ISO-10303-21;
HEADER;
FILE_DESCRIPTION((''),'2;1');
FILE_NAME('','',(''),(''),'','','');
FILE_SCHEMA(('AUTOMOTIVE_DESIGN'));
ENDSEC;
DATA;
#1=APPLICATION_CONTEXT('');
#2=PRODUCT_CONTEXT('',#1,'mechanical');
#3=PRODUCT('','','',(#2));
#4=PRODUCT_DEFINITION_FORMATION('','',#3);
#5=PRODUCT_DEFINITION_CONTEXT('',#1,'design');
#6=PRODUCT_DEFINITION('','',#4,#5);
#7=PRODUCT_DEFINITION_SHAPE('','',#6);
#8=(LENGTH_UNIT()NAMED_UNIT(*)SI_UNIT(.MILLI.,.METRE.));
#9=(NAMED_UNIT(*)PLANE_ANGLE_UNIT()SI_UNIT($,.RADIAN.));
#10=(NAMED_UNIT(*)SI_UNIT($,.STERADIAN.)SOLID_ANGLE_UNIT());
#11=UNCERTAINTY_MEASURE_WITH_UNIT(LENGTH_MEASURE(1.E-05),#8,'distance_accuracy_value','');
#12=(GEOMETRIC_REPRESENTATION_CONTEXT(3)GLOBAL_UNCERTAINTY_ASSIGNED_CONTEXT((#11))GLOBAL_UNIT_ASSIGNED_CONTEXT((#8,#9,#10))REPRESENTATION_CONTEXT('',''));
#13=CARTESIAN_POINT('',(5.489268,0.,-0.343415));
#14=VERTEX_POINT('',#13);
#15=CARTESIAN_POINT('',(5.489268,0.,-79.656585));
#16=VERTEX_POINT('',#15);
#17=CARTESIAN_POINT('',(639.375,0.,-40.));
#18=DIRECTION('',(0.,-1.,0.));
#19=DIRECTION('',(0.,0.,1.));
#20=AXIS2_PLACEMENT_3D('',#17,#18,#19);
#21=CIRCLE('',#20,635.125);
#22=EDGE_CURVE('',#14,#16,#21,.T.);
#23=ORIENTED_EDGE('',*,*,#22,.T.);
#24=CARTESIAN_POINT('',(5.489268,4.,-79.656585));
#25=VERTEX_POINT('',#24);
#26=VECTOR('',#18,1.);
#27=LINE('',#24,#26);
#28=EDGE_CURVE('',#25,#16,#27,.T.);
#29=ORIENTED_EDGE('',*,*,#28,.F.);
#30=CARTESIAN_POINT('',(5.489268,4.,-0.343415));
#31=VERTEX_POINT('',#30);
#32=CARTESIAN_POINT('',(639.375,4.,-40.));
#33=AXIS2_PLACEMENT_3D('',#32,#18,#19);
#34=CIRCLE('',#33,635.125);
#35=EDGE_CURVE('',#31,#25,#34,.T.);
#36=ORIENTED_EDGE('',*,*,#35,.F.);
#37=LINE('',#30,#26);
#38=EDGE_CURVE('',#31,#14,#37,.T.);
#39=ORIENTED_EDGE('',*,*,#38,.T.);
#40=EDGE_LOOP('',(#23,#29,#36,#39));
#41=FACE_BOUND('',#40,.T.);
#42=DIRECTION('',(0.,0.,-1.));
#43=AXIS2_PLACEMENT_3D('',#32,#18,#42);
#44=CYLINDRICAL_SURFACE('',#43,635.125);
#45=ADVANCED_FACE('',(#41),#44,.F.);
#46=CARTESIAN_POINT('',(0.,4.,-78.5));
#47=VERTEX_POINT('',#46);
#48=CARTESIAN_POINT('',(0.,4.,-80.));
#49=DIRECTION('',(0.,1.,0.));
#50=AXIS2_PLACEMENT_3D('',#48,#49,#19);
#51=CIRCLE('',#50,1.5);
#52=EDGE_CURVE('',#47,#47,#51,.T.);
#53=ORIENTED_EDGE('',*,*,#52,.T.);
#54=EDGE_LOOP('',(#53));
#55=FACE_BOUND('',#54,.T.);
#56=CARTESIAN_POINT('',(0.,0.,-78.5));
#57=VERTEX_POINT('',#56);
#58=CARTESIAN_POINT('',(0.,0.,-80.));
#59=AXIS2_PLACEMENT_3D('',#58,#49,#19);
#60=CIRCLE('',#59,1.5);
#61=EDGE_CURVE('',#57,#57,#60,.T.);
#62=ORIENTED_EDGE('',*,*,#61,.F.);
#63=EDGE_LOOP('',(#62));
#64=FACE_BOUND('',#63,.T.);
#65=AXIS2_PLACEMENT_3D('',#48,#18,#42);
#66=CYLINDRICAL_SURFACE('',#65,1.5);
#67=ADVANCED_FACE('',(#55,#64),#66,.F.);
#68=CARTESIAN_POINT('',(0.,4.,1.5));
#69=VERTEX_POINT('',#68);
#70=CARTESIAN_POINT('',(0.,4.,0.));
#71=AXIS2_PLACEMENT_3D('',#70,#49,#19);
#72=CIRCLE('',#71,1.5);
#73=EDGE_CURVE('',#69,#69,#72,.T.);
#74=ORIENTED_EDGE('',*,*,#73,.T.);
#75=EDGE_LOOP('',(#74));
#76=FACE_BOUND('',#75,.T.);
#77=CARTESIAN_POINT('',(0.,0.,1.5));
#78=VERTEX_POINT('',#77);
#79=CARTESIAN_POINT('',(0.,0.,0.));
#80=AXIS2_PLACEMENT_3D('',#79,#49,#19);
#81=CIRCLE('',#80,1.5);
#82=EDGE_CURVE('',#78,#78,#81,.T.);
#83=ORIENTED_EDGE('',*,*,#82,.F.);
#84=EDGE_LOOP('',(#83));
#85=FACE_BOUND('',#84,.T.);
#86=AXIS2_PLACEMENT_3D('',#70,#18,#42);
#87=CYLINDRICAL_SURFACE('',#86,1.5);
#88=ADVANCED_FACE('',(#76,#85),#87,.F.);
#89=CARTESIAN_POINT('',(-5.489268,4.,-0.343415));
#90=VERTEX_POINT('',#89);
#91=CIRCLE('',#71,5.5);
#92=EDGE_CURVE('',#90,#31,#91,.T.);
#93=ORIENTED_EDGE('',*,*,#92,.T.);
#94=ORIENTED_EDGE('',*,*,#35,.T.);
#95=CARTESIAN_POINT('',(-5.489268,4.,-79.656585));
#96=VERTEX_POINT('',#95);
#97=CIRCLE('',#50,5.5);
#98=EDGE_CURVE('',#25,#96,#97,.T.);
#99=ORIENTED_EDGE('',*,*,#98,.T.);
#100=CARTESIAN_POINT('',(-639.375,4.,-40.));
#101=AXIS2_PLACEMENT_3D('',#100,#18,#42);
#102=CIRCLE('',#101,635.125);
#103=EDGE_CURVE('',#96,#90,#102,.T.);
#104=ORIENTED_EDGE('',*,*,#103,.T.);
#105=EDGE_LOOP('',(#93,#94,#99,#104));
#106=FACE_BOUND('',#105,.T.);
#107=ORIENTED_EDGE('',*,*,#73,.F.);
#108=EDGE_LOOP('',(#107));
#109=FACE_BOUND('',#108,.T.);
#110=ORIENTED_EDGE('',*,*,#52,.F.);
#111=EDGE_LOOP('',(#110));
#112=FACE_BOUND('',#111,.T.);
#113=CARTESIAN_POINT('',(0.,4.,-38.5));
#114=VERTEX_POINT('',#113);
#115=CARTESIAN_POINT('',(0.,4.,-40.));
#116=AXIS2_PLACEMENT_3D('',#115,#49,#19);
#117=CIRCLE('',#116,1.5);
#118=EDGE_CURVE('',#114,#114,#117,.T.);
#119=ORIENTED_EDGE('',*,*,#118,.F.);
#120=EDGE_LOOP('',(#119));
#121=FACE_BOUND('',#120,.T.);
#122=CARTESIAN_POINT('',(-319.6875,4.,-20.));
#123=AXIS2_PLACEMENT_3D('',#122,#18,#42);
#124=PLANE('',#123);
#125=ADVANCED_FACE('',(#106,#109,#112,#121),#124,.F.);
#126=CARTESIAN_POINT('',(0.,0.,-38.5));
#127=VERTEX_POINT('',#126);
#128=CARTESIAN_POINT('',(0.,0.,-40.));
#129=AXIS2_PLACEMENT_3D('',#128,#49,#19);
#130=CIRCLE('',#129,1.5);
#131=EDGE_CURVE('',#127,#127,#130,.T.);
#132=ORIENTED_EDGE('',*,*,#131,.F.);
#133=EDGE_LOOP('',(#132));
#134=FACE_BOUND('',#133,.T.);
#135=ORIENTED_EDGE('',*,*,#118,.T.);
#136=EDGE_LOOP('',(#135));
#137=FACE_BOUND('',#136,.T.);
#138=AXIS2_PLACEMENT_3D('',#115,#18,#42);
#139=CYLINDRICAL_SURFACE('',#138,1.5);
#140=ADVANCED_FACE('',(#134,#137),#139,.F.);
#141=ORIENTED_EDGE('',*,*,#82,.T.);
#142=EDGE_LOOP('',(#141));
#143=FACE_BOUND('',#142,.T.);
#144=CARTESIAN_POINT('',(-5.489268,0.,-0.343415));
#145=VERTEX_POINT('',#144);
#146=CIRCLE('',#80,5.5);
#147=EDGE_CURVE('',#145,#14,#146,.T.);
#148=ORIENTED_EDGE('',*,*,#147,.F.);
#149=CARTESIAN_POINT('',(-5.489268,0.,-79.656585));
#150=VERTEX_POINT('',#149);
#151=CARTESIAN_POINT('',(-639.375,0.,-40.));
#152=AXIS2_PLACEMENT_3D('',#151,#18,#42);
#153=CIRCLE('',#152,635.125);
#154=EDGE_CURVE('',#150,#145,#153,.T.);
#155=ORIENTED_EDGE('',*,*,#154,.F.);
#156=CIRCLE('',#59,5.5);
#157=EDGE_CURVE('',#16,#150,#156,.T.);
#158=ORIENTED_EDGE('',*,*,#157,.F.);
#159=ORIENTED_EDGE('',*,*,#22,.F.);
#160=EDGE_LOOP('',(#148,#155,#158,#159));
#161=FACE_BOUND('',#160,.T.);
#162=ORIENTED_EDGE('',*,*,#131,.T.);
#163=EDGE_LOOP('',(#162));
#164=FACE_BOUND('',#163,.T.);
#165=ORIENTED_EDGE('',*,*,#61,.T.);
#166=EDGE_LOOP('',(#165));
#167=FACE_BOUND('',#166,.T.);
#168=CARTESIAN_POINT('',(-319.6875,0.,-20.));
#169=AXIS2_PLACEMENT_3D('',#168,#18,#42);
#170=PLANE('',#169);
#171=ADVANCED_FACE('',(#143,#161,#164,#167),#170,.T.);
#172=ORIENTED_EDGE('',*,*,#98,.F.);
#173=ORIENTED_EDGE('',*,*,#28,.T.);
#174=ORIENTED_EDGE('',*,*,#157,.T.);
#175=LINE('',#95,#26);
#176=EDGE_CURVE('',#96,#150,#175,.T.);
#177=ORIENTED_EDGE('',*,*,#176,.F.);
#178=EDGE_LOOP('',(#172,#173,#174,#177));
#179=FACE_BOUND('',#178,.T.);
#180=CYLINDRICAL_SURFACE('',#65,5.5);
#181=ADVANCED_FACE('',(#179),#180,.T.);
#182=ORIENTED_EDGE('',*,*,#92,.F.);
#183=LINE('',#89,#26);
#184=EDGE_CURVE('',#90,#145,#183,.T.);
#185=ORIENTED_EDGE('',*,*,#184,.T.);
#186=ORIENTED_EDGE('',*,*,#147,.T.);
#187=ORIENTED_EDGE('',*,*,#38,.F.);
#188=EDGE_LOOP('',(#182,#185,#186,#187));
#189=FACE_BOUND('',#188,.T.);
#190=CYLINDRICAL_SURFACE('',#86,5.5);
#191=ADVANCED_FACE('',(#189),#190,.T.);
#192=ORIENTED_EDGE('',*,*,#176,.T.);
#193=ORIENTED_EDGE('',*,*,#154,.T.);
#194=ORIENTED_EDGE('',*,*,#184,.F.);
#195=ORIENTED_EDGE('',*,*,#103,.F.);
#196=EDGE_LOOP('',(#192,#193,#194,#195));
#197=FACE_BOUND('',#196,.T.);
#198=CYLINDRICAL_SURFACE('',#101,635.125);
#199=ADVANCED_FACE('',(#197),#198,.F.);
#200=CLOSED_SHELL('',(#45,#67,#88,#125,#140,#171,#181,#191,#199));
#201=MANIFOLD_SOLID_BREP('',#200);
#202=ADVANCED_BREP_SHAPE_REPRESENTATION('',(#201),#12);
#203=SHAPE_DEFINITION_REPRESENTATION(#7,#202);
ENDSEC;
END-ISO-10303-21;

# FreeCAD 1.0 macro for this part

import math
import FreeCAD as App
import Part
import Sketcher

doc = App.newDocument("Part")
body = doc.addObject("PartDesign::Body", "Body")

# Sketch on XZ plane
sketch1 = body.newObject("Sketcher::SketchObject", "Sketch")
sketch1.AttachmentSupport = (doc.getObject("XZ_Plane"), [""])
sketch1.MapMode = "FlatFace"
sketch1.addGeometry([
    Part.ArcOfCircle(Part.Circle(App.Vector(0, 0, 0), App.Vector(0, 0, 1), 5.5), math.radians(-3.579821), math.radians(183.579821)),  # 0
    Part.ArcOfCircle(Part.Circle(App.Vector(639.375, -40, 0), App.Vector(0, 0, 1), 635.125), math.radians(176.420179), math.radians(183.579821)),  # 1
    Part.ArcOfCircle(Part.Circle(App.Vector(0, -80, 0), App.Vector(0, 0, 1), 5.5), math.radians(176.420179), math.radians(363.579821)),  # 2
    Part.ArcOfCircle(Part.Circle(App.Vector(-639.375, -40, 0), App.Vector(0, 0, 1), 635.125), math.radians(-3.579821), math.radians(3.579821)),  # 3
    Part.Circle(App.Vector(0, 0, 0), App.Vector(0, 0, 1), 1.5),  # 4
    Part.Circle(App.Vector(0, -40, 0), App.Vector(0, 0, 1), 1.5),  # 5
    Part.Circle(App.Vector(0, -80, 0), App.Vector(0, 0, 1), 1.5),  # 6
], False)
sketch1.addConstraint([
    Sketcher.Constraint("Tangent", 0, 1, 1, 1),
    Sketcher.Constraint("Tangent", 1, 2, 2, 2),
    Sketcher.Constraint("Tangent", 2, 1, 3, 1),
    Sketcher.Constraint("Tangent", 3, 2, 0, 2),
    Sketcher.Constraint("Coincident", 0, 3, -1, 1),
    Sketcher.Constraint("Coincident", 4, 3, -1, 1),
    Sketcher.Constraint("Coincident", 6, 3, 2, 3),
    Sketcher.Constraint("Equal", 0, 2),
    Sketcher.Constraint("Equal", 1, 3),
    Sketcher.Constraint("Equal", 4, 5),
    Sketcher.Constraint("Equal", 5, 6),
    Sketcher.Constraint("PointOnObject", 2, 3, -2),
    Sketcher.Constraint("PointOnObject", 5, 3, -2),
    Sketcher.Constraint("Horizontal", 3, 3, 5, 3),
    Sketcher.Constraint("Diameter", 4, 3.0),
    Sketcher.Constraint("Radius", 0, 5.5),
    Sketcher.Constraint("DistanceY", 1, 3, -1, 1, 40.0),
    Sketcher.Constraint("Radius", 1, 635.125),
])
pad1 = body.newObject("PartDesign::Pad", "Pad")
pad1.Profile = sketch1
pad1.Length = 4
pad1.Reversed = True

doc.recompute()
